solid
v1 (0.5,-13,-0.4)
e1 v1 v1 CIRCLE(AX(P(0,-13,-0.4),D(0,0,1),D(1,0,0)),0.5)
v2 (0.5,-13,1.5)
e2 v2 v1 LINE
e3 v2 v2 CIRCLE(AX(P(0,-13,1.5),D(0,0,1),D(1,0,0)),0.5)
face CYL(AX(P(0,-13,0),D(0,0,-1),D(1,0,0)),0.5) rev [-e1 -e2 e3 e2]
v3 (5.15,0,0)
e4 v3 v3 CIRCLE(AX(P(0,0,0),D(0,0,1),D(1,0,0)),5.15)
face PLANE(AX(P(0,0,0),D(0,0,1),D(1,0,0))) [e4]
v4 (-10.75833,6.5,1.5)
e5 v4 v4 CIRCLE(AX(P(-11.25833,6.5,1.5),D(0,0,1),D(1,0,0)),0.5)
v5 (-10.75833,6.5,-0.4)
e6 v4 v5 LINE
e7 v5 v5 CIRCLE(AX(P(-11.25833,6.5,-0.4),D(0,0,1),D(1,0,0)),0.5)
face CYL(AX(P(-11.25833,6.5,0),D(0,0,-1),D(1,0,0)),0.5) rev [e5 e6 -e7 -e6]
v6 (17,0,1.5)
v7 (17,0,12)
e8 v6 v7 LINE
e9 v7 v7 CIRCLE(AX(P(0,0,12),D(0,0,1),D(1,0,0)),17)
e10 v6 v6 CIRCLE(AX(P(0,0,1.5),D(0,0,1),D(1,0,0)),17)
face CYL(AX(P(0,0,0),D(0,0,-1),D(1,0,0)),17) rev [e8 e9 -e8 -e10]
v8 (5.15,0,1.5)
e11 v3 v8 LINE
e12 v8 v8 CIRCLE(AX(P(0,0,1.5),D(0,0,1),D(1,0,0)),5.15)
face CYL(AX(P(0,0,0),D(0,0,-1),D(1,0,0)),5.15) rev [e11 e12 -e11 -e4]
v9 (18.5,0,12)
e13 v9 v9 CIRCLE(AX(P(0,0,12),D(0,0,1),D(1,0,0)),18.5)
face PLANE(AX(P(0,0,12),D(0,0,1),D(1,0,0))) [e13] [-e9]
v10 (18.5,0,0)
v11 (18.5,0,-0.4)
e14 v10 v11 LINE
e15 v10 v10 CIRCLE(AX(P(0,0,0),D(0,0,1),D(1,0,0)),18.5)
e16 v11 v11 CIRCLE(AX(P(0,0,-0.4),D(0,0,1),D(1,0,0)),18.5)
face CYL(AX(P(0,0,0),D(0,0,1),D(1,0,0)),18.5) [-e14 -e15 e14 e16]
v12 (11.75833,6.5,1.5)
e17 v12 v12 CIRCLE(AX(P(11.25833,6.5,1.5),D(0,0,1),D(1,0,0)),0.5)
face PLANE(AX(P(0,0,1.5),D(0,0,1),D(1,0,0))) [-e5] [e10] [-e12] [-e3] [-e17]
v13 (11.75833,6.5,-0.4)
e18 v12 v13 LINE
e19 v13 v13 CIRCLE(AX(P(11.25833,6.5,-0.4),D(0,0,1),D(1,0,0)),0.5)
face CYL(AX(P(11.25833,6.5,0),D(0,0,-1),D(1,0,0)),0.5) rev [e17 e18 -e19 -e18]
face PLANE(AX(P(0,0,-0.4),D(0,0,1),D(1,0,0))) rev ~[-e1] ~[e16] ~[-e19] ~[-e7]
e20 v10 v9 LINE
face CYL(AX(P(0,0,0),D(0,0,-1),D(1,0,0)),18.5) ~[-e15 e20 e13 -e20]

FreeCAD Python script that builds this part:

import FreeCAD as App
import Part
import Sketcher

V = App.Vector

doc = App.newDocument("Part")
body = doc.addObject("PartDesign::Body", "Body")

sketch1 = body.newObject("Sketcher::SketchObject", "Sketch")
sketch1.AttachmentSupport = (doc.getObject("XY_Plane"), [""])
sketch1.MapMode = "FlatFace"
sketch1.addGeometry(Part.Circle(V(0, 0, 0), V(0, 0, 1), 18.5), False)
sketch1.addGeometry(Part.Circle(V(0, -13, 0), V(0, 0, 1), 0.5), False)
sketch1.addGeometry(Part.Circle(V(-11.3, 6.5, 0), V(0, 0, 1), 0.5), False)
sketch1.addGeometry(Part.Circle(V(11.3, 6.5, 0), V(0, 0, 1), 0.5), False)
sketch1.addConstraint(Sketcher.Constraint("Coincident", 0, 3, -1, 1))
sketch1.addConstraint(Sketcher.Constraint("Equal", 1, 2))
sketch1.addConstraint(Sketcher.Constraint("Equal", 2, 3))
sketch1.addConstraint(Sketcher.Constraint("Symmetric", 2, 3, 3, 3, -2))
sketch1.addConstraint(Sketcher.Constraint("PointOnObject", 1, 3, -2))
sketch1.addConstraint(Sketcher.Constraint("Diameter", 0, 37.0))
sketch1.addConstraint(Sketcher.Constraint("Diameter", 1, 1.0))
sketch1.addConstraint(Sketcher.Constraint("DistanceY", 1, 3, -1, 1, 13.0))
sketch1.addConstraint(Sketcher.Constraint("DistanceY", -1, 1, 2, 3, 6.5))
sketch1.addConstraint(Sketcher.Constraint("DistanceX", 2, 3, -1, 1, 11.25833))
pad1 = body.newObject("PartDesign::Pad", "Pad")
pad1.Profile = sketch1
pad1.Length = 0.4
pad1.Reversed = True

sketch2 = body.newObject("Sketcher::SketchObject", "Sketch001")
sketch2.AttachmentSupport = (doc.getObject("XY_Plane"), [""])
sketch2.MapMode = "FlatFace"
sketch2.addGeometry(Part.Circle(V(0, 0, 0), V(0, 0, 1), 17), False)
sketch2.addGeometry(Part.Circle(V(0, -13, 0), V(0, 0, 1), 0.5), False)
sketch2.addGeometry(Part.Circle(V(-11.3, 6.5, 0), V(0, 0, 1), 0.5), False)
sketch2.addGeometry(Part.Circle(V(0, 0, 0), V(0, 0, 1), 5.2), False)
sketch2.addGeometry(Part.Circle(V(11.3, 6.5, 0), V(0, 0, 1), 0.5), False)
sketch2.addConstraint(Sketcher.Constraint("Coincident", 0, 3, -1, 1))
sketch2.addConstraint(Sketcher.Constraint("Coincident", 3, 3, -1, 1))
sketch2.addConstraint(Sketcher.Constraint("Equal", 1, 2))
sketch2.addConstraint(Sketcher.Constraint("Equal", 2, 4))
sketch2.addConstraint(Sketcher.Constraint("Symmetric", 2, 3, 4, 3, -2))
sketch2.addConstraint(Sketcher.Constraint("PointOnObject", 1, 3, -2))
sketch2.addConstraint(Sketcher.Constraint("Diameter", 0, 34.0))
sketch2.addConstraint(Sketcher.Constraint("Diameter", 1, 1.0))
sketch2.addConstraint(Sketcher.Constraint("Diameter", 3, 10.3))
sketch2.addConstraint(Sketcher.Constraint("DistanceY", 1, 3, -1, 1, 13.0))
sketch2.addConstraint(Sketcher.Constraint("DistanceY", -1, 1, 2, 3, 6.5))
sketch2.addConstraint(Sketcher.Constraint("DistanceX", 2, 3, -1, 1, 11.25833))
pad2 = body.newObject("PartDesign::Pad", "Pad001")
pad2.Profile = sketch2
pad2.Length = 1.5

sketch3 = body.newObject("Sketcher::SketchObject", "Sketch002")
sketch3.AttachmentSupport = (doc.getObject("XY_Plane"), [""])
sketch3.MapMode = "FlatFace"
sketch3.addGeometry(Part.Circle(V(0, 0, 0), V(0, 0, 1), 18), False)
sketch3.addGeometry(Part.Circle(V(0, 0, 0), V(0, 0, 1), 17), False)
sketch3.addConstraint(Sketcher.Constraint("Coincident", 0, 3, -1, 1))
sketch3.addConstraint(Sketcher.Constraint("Coincident", 1, 3, -1, 1))
sketch3.addConstraint(Sketcher.Constraint("Diameter", 0, 37.0))
sketch3.addConstraint(Sketcher.Constraint("Diameter", 1, 34.0))
pad3 = body.newObject("PartDesign::Pad", "Pad002")
pad3.Profile = sketch3
pad3.Length = 12

doc.recompute()
